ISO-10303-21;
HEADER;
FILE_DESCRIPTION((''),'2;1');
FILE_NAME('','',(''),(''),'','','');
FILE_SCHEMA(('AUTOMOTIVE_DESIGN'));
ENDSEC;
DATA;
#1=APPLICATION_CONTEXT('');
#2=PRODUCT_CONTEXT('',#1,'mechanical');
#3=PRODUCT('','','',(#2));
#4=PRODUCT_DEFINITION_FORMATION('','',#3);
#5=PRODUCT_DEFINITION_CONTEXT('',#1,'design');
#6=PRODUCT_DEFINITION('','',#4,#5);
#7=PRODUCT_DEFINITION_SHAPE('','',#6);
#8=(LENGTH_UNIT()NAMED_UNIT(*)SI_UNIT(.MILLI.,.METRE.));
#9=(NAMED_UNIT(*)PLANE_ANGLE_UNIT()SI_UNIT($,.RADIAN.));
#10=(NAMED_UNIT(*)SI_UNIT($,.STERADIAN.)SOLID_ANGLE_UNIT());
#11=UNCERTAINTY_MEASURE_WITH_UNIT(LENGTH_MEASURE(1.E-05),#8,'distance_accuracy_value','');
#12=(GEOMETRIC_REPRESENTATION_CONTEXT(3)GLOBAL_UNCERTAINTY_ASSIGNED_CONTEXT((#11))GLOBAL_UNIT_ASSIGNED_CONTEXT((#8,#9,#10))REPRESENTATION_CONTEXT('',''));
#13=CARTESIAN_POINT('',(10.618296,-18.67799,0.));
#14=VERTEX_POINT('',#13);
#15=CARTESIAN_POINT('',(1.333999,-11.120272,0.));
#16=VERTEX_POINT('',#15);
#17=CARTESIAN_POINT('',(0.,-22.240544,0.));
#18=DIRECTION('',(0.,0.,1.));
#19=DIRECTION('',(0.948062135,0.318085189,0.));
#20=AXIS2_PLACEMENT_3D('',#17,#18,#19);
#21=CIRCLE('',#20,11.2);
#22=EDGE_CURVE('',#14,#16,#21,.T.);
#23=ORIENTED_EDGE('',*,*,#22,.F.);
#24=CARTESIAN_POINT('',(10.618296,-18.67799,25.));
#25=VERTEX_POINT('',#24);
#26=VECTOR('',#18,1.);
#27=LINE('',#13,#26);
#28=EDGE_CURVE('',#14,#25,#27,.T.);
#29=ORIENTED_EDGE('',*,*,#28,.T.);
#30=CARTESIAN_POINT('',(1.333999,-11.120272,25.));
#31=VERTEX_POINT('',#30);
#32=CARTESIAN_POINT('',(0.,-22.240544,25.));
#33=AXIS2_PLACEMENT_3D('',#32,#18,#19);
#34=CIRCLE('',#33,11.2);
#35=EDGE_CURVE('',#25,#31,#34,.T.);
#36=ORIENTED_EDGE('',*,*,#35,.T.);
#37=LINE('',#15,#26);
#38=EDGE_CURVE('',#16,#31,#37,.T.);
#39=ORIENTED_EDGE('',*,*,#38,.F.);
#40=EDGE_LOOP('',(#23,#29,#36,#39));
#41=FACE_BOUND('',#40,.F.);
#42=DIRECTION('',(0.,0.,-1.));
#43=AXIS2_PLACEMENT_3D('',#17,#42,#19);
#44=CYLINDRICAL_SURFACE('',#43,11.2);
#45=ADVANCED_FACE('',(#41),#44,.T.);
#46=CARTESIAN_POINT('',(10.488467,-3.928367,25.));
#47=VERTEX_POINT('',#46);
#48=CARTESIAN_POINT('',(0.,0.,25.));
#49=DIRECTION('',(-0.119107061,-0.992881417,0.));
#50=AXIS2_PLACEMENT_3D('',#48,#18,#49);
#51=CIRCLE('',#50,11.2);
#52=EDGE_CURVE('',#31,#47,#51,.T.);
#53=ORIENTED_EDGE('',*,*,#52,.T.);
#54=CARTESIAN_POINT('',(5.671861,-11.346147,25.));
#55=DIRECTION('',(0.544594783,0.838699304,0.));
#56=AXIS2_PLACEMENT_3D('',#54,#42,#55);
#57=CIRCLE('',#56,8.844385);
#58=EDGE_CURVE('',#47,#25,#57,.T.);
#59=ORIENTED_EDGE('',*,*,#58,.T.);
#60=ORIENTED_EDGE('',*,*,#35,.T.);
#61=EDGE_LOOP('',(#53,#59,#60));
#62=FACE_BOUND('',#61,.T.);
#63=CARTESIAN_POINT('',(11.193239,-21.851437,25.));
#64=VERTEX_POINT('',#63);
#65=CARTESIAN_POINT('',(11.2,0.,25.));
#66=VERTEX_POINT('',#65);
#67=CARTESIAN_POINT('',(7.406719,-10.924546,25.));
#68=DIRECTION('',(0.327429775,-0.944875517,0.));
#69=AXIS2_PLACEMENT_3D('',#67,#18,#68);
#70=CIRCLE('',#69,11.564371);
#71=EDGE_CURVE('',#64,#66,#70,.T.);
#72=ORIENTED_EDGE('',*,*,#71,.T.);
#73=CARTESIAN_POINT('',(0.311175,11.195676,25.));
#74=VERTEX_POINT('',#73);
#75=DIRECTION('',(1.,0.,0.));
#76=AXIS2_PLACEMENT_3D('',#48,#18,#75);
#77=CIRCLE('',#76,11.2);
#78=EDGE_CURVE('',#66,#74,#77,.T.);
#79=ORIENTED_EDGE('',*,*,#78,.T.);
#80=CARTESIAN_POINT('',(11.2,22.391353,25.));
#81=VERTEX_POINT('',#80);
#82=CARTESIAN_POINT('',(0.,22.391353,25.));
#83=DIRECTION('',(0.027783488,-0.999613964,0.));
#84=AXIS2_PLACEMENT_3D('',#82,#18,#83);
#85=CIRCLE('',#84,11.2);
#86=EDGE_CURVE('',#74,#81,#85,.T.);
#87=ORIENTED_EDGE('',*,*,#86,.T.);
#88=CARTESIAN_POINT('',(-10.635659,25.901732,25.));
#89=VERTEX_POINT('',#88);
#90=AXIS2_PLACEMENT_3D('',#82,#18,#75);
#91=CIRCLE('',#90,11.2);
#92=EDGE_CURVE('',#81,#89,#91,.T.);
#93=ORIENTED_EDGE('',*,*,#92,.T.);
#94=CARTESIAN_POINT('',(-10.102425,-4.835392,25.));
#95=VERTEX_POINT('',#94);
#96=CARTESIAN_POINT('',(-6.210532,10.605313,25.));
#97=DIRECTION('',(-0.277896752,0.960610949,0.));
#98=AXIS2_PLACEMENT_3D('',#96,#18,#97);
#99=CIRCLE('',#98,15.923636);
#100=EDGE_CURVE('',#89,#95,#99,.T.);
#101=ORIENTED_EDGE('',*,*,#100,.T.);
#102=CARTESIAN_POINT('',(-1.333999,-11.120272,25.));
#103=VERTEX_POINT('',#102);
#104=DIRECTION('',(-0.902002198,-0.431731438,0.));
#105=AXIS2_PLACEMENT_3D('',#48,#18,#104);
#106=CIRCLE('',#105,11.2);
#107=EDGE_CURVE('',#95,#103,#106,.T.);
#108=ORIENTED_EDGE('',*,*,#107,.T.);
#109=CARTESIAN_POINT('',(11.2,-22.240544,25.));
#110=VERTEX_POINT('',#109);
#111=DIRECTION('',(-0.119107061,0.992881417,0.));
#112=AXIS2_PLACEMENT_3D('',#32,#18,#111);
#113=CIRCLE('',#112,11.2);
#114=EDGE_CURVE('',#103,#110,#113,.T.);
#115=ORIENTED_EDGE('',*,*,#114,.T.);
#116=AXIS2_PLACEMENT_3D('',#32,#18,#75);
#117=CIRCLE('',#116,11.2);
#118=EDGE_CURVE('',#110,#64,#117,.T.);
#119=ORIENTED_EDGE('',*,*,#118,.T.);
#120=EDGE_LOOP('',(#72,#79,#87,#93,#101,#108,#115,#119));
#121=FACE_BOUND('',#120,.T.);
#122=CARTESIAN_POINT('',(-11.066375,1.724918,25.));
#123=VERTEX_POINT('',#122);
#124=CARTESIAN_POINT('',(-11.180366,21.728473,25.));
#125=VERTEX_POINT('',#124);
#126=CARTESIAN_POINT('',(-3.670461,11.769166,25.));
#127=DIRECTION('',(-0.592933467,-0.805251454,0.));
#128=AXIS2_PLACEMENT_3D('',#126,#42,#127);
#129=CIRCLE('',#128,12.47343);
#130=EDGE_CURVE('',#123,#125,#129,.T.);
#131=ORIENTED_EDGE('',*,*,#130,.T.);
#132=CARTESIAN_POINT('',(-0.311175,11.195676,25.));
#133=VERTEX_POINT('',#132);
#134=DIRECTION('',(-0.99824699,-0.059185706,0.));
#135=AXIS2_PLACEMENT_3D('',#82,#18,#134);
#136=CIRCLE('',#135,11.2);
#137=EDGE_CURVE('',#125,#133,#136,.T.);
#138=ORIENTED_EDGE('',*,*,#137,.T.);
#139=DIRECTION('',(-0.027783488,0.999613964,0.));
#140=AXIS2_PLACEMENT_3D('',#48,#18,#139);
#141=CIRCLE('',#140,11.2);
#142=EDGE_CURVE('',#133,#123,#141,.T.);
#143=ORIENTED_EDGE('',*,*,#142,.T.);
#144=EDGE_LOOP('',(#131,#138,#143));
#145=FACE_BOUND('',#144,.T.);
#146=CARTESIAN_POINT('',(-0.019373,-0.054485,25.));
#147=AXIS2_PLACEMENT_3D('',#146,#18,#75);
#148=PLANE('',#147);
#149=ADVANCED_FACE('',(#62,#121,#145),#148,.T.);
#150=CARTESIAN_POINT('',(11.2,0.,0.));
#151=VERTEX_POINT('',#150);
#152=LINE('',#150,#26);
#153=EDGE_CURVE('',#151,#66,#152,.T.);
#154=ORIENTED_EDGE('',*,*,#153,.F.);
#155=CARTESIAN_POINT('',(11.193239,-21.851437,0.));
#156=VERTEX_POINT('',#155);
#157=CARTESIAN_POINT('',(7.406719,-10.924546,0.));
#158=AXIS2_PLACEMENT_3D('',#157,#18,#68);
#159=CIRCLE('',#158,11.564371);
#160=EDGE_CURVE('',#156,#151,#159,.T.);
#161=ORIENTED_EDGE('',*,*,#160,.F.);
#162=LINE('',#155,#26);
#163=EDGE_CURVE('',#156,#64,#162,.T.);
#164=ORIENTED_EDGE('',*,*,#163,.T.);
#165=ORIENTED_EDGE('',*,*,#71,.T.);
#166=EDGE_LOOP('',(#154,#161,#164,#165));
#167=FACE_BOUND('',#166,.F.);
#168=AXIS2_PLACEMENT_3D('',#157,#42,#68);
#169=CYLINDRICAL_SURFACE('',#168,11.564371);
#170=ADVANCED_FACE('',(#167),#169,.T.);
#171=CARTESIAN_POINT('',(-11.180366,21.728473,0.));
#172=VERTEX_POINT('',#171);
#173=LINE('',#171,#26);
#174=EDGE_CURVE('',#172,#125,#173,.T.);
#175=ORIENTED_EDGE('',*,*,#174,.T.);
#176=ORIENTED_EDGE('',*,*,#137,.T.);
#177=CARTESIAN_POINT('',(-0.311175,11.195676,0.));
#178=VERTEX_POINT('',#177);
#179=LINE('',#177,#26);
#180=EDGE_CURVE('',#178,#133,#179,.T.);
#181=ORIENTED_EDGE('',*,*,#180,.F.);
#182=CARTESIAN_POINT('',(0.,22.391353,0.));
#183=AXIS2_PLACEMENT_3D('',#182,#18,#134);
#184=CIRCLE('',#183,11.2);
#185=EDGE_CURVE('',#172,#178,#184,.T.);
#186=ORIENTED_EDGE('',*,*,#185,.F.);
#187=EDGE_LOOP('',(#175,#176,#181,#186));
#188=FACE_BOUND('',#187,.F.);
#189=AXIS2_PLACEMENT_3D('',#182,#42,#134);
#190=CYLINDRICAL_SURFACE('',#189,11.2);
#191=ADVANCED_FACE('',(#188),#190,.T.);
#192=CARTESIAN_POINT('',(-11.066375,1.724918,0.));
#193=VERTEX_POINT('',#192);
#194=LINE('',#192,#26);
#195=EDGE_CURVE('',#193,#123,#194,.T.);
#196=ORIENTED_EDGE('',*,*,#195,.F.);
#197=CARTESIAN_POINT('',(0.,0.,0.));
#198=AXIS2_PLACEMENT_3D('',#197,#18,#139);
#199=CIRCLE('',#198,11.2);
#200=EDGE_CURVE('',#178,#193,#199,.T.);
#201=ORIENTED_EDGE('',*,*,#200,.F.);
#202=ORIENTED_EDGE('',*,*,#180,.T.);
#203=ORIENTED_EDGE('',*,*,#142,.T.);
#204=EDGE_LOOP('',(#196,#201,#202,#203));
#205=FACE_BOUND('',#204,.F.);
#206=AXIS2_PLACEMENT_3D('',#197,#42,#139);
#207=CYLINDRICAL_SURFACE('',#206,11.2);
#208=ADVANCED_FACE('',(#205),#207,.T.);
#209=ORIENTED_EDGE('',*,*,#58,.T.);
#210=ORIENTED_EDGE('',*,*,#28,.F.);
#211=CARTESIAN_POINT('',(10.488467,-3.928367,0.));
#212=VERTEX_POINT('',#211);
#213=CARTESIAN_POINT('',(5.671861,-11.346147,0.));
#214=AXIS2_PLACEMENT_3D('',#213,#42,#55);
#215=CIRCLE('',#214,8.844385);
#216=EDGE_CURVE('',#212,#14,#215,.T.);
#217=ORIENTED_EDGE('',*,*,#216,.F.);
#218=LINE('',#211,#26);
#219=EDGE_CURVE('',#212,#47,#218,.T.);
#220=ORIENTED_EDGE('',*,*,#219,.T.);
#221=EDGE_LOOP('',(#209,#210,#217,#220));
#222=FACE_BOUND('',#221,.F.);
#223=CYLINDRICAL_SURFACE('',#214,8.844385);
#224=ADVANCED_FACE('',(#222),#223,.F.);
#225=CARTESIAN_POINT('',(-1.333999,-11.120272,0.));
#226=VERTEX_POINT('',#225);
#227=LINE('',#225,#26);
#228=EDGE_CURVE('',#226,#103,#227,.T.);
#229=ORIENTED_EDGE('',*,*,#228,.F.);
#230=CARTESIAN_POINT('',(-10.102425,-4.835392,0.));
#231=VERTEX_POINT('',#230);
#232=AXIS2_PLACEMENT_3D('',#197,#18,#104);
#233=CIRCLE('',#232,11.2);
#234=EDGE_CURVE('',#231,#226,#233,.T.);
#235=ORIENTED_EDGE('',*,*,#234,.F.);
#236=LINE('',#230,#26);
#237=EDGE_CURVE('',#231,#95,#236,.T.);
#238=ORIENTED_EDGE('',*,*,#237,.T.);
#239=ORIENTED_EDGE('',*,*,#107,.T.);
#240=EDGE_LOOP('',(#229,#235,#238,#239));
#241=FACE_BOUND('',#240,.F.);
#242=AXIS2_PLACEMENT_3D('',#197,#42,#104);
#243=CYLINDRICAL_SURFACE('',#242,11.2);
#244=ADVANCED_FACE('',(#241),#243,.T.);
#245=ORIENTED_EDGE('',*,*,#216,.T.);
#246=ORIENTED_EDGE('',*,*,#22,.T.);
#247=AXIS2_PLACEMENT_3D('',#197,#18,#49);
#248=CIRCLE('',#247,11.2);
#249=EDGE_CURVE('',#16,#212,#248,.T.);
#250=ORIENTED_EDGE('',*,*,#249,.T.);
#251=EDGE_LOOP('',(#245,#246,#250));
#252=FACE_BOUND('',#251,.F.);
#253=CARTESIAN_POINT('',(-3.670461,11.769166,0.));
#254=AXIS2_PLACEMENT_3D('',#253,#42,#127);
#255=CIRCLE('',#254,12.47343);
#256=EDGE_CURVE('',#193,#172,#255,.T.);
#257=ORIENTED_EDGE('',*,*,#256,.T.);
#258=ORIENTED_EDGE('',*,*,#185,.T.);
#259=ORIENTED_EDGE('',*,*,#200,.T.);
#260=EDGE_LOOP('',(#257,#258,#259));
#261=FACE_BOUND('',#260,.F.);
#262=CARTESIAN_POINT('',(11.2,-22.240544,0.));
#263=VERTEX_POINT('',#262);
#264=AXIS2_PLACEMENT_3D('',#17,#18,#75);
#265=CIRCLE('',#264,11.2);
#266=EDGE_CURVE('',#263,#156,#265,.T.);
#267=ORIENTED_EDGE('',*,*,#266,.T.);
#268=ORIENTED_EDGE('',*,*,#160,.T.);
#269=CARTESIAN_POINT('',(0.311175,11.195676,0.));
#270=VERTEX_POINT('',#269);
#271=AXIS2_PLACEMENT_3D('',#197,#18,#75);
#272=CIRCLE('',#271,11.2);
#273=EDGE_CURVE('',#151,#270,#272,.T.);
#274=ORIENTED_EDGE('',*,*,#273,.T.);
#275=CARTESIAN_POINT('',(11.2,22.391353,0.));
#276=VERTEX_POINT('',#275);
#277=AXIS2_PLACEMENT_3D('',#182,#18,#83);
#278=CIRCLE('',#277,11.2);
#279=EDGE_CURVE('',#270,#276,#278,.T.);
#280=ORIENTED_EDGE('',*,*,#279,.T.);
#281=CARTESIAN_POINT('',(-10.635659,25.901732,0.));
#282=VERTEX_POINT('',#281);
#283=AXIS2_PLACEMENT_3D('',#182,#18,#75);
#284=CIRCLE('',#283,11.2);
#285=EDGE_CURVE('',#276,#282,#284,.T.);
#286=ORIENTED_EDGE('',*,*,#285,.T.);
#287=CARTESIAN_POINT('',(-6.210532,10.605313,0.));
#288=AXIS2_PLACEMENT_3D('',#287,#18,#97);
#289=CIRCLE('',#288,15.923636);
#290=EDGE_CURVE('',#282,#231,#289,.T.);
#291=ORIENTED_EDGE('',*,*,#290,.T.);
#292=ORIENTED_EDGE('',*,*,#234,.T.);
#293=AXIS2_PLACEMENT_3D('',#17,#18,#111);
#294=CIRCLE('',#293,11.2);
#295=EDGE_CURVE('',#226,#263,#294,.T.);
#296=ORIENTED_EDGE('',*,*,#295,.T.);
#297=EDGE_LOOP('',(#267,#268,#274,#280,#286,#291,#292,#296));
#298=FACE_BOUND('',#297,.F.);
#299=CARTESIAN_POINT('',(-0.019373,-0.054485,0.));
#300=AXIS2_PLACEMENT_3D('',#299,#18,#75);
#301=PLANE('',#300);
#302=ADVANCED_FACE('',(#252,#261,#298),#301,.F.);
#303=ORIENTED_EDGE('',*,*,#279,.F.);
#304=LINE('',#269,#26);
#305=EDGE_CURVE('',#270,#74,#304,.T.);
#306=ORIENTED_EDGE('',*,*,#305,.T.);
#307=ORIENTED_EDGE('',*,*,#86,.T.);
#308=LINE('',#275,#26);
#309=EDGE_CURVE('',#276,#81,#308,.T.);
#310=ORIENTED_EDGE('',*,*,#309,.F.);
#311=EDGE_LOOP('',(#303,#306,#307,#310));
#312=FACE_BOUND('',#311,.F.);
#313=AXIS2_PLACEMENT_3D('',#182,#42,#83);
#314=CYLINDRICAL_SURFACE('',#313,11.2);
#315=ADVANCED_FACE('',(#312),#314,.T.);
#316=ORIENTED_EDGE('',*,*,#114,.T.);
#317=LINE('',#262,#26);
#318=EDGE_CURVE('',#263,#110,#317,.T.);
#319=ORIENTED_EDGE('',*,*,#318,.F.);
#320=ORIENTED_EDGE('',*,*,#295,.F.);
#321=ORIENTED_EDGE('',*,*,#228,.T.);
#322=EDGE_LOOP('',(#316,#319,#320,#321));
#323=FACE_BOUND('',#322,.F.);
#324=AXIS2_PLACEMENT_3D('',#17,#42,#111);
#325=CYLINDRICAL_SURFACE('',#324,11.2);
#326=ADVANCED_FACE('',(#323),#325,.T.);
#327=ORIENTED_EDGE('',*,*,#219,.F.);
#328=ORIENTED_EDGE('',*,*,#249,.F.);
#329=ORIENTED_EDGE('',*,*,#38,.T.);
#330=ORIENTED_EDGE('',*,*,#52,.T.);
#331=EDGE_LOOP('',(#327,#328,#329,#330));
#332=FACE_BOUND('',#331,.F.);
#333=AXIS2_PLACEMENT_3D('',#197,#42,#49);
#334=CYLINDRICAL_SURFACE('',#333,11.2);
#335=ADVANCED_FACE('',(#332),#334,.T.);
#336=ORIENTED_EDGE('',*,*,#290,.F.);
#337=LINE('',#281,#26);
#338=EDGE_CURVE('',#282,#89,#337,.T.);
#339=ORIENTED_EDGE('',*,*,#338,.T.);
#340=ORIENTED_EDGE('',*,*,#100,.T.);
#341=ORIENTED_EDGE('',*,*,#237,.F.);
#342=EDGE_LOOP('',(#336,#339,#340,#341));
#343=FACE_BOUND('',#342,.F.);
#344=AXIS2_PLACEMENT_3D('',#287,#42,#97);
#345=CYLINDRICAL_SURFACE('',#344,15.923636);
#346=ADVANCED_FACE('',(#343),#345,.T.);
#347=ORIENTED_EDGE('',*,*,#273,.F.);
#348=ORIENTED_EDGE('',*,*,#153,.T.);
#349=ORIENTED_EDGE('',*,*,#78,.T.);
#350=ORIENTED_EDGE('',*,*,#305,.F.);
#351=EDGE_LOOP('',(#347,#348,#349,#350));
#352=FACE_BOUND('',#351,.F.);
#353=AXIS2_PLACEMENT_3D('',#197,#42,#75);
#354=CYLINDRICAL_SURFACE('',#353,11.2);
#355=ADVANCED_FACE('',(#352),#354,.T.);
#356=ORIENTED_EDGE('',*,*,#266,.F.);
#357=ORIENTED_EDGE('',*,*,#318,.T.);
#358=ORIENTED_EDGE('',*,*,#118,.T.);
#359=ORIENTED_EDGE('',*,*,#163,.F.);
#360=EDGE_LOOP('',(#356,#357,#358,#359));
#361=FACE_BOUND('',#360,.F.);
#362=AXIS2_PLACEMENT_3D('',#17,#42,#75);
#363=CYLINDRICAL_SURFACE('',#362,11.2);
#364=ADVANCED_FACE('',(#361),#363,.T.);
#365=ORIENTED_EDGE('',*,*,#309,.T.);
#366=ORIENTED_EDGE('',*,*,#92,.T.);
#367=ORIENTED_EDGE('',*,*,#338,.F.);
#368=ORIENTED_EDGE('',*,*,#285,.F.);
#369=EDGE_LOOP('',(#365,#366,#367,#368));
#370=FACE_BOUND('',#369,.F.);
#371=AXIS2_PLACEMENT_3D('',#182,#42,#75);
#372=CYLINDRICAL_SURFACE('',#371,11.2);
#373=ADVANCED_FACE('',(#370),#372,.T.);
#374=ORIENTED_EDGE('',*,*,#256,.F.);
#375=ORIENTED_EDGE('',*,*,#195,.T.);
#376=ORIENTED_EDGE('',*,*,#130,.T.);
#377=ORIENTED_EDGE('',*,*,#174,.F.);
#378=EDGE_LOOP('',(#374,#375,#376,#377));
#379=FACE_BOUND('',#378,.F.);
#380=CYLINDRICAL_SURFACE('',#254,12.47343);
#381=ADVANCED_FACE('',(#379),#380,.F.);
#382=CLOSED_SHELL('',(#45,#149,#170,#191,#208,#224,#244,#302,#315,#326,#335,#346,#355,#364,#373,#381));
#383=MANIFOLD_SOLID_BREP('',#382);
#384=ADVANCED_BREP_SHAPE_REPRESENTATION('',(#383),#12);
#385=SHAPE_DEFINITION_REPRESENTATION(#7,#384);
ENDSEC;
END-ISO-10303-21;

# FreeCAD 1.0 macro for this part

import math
import FreeCAD as App
import Part
import Sketcher
from FreeCAD import Vector
Q = App.Units.Quantity

doc = App.newDocument("Part")
body = doc.addObject("PartDesign::Body", "Body")

# Sketch on XY plane
sketch1 = body.newObject("Sketcher::SketchObject", "Sketch")
sketch1.AttachmentSupport = (doc.getObject("XY_Plane"), [""])
sketch1.MapMode = "FlatFace"
sketch1.addGeometry([
    Part.ArcOfCircle(Part.Circle(Vector(0, 0, 0), Vector(0, 0, 1), 11.2), math.radians(0), math.radians(88)),  # 0
    Part.ArcOfCircle(Part.Circle(Vector(0, 22.39, 0), Vector(0, 0, 1), 11.2), math.radians(-88), math.radians(0)),  # 1
    Part.ArcOfCircle(Part.Circle(Vector(0, 22.39, 0), Vector(0, 0, 1), 11.2), math.radians(0), math.radians(162)),  # 2
    Part.ArcOfCircle(Part.Circle(Vector(-6.21, 10.61, 0), Vector(0, 0, 1), 15.92), math.radians(106), math.radians(256)),  # 3
    Part.ArcOfCircle(Part.Circle(Vector(0, 0, 0), Vector(0, 0, 1), 11.2), math.radians(-154), math.radians(-97)),  # 4
    Part.ArcOfCircle(Part.Circle(Vector(0, -22.24, 0), Vector(0, 0, 1), 11.2), math.radians(97), math.radians(360)),  # 5
    Part.ArcOfCircle(Part.Circle(Vector(0, -22.24, 0), Vector(0, 0, 1), 11.2), math.radians(0), math.radians(1.99)),  # 6
    Part.ArcOfCircle(Part.Circle(Vector(7.41, -10.92, 0), Vector(0, 0, 1), 11.56), math.radians(-71), math.radians(71)),  # 7
    Part.ArcOfCircle(Part.Circle(Vector(0, -22.24, 0), Vector(0, 0, 1), 11.2), math.radians(19), math.radians(83)),  # 8
    Part.ArcOfCircle(Part.Circle(Vector(0, 0, 0), Vector(0, 0, 1), 11.2), math.radians(-83), math.radians(-21)),  # 9
    Part.ArcOfCircle(Part.Circle(Vector(5.67, -11.35, 0), Vector(0, 0, 1), 8.84), math.radians(-56), math.radians(57)),  # 10
    Part.ArcOfCircle(Part.Circle(Vector(0, 22.39, 0), Vector(0, 0, 1), 11.2), math.radians(-177), math.radians(-92)),  # 11
    Part.ArcOfCircle(Part.Circle(Vector(0, 0, 0), Vector(0, 0, 1), 11.2), math.radians(92), math.radians(171)),  # 12
    Part.ArcOfCircle(Part.Circle(Vector(-3.67, 11.77, 0), Vector(0, 0, 1), 12.47), math.radians(127), math.radians(234)),  # 13
], False)
sketch1.addConstraint([
    Sketcher.Constraint("Coincident", 0, 2, 1, 1),
    Sketcher.Constraint("Tangent", 1, 2, 2, 1),
    Sketcher.Constraint("Coincident", 2, 2, 3, 1),
    Sketcher.Constraint("Coincident", 3, 2, 4, 1),
    Sketcher.Constraint("Coincident", 4, 2, 5, 1),
    Sketcher.Constraint("Tangent", 5, 2, 6, 1),
    Sketcher.Constraint("Coincident", 6, 2, 7, 1),
    Sketcher.Constraint("Coincident", 7, 2, 0, 1),
    Sketcher.Constraint("Coincident", 8, 2, 9, 1),
    Sketcher.Constraint("Coincident", 9, 2, 10, 2),
    Sketcher.Constraint("Coincident", 10, 1, 8, 1),
    Sketcher.Constraint("Coincident", 11, 2, 12, 1),
    Sketcher.Constraint("Coincident", 12, 2, 13, 2),
    Sketcher.Constraint("Coincident", 13, 1, 11, 1),
    Sketcher.Constraint("Coincident", 0, 3, -1, 1),
    Sketcher.Constraint("Coincident", 4, 3, -1, 1),
    Sketcher.Constraint("Coincident", 9, 3, -1, 1),
    Sketcher.Constraint("Coincident", 12, 3, -1, 1),
    Sketcher.Constraint("Coincident", 8, 3, 5, 3),
    Sketcher.Constraint("Coincident", 11, 3, 1, 3),
    Sketcher.Constraint("Equal", 0, 1),
    Sketcher.Constraint("Equal", 1, 2),
    Sketcher.Constraint("Equal", 2, 4),
    Sketcher.Constraint("Equal", 4, 5),
    Sketcher.Constraint("Equal", 5, 6),
    Sketcher.Constraint("Equal", 6, 8),
    Sketcher.Constraint("Equal", 8, 9),
    Sketcher.Constraint("Equal", 9, 11),
    Sketcher.Constraint("Equal", 11, 12),
    Sketcher.Constraint("PointOnObject", 1, 3, -2),
    Sketcher.Constraint("PointOnObject", 5, 3, -2),
    Sketcher.Constraint("PointOnObject", 7, 2, -1),
    Sketcher.Constraint("Horizontal", 11, 3, 1, 2),
    Sketcher.Constraint("Horizontal", 8, 3, 5, 2),
    Sketcher.Constraint("Radius", 0, Q("11.2 mm")),
    Sketcher.Constraint("Radius", 7, Q("11.564371 mm")),
    Sketcher.Constraint("Radius", 13, Q("12.47343 mm")),
    Sketcher.Constraint("DistanceX", 4, 2, -1, 1, Q("1.333999 mm")),
    Sketcher.Constraint("Radius", 3, Q("15.923636 mm")),
    Sketcher.Constraint("Radius", 10, Q("8.844385 mm")),
    Sketcher.Constraint("DistanceY", 10, 3, 7, 3, Q("0.421601 mm")),
    Sketcher.Constraint("DistanceX", 2, 2, 13, 3, Q("6.965198 mm")),
    Sketcher.Constraint("DistanceX", 3, 3, -1, 1, Q("6.210532 mm")),
    Sketcher.Constraint("DistanceX", -1, 1, 7, 3, Q("7.406719 mm")),
    Sketcher.Constraint("DistanceX", -1, 1, 10, 3, Q("5.671861 mm")),
    Sketcher.Constraint("DistanceX", 13, 3, -1, 1, Q("3.670461 mm")),
    Sketcher.Constraint("DistanceY", -1, 1, 12, 2, Q("1.724918 mm")),
    Sketcher.Constraint("DistanceY", 7, 3, 3, 3, Q("21.529859 mm")),
])
pad1 = body.newObject("PartDesign::Pad", "Pad")
pad1.Profile = sketch1
pad1.Length = 25

doc.recompute()
